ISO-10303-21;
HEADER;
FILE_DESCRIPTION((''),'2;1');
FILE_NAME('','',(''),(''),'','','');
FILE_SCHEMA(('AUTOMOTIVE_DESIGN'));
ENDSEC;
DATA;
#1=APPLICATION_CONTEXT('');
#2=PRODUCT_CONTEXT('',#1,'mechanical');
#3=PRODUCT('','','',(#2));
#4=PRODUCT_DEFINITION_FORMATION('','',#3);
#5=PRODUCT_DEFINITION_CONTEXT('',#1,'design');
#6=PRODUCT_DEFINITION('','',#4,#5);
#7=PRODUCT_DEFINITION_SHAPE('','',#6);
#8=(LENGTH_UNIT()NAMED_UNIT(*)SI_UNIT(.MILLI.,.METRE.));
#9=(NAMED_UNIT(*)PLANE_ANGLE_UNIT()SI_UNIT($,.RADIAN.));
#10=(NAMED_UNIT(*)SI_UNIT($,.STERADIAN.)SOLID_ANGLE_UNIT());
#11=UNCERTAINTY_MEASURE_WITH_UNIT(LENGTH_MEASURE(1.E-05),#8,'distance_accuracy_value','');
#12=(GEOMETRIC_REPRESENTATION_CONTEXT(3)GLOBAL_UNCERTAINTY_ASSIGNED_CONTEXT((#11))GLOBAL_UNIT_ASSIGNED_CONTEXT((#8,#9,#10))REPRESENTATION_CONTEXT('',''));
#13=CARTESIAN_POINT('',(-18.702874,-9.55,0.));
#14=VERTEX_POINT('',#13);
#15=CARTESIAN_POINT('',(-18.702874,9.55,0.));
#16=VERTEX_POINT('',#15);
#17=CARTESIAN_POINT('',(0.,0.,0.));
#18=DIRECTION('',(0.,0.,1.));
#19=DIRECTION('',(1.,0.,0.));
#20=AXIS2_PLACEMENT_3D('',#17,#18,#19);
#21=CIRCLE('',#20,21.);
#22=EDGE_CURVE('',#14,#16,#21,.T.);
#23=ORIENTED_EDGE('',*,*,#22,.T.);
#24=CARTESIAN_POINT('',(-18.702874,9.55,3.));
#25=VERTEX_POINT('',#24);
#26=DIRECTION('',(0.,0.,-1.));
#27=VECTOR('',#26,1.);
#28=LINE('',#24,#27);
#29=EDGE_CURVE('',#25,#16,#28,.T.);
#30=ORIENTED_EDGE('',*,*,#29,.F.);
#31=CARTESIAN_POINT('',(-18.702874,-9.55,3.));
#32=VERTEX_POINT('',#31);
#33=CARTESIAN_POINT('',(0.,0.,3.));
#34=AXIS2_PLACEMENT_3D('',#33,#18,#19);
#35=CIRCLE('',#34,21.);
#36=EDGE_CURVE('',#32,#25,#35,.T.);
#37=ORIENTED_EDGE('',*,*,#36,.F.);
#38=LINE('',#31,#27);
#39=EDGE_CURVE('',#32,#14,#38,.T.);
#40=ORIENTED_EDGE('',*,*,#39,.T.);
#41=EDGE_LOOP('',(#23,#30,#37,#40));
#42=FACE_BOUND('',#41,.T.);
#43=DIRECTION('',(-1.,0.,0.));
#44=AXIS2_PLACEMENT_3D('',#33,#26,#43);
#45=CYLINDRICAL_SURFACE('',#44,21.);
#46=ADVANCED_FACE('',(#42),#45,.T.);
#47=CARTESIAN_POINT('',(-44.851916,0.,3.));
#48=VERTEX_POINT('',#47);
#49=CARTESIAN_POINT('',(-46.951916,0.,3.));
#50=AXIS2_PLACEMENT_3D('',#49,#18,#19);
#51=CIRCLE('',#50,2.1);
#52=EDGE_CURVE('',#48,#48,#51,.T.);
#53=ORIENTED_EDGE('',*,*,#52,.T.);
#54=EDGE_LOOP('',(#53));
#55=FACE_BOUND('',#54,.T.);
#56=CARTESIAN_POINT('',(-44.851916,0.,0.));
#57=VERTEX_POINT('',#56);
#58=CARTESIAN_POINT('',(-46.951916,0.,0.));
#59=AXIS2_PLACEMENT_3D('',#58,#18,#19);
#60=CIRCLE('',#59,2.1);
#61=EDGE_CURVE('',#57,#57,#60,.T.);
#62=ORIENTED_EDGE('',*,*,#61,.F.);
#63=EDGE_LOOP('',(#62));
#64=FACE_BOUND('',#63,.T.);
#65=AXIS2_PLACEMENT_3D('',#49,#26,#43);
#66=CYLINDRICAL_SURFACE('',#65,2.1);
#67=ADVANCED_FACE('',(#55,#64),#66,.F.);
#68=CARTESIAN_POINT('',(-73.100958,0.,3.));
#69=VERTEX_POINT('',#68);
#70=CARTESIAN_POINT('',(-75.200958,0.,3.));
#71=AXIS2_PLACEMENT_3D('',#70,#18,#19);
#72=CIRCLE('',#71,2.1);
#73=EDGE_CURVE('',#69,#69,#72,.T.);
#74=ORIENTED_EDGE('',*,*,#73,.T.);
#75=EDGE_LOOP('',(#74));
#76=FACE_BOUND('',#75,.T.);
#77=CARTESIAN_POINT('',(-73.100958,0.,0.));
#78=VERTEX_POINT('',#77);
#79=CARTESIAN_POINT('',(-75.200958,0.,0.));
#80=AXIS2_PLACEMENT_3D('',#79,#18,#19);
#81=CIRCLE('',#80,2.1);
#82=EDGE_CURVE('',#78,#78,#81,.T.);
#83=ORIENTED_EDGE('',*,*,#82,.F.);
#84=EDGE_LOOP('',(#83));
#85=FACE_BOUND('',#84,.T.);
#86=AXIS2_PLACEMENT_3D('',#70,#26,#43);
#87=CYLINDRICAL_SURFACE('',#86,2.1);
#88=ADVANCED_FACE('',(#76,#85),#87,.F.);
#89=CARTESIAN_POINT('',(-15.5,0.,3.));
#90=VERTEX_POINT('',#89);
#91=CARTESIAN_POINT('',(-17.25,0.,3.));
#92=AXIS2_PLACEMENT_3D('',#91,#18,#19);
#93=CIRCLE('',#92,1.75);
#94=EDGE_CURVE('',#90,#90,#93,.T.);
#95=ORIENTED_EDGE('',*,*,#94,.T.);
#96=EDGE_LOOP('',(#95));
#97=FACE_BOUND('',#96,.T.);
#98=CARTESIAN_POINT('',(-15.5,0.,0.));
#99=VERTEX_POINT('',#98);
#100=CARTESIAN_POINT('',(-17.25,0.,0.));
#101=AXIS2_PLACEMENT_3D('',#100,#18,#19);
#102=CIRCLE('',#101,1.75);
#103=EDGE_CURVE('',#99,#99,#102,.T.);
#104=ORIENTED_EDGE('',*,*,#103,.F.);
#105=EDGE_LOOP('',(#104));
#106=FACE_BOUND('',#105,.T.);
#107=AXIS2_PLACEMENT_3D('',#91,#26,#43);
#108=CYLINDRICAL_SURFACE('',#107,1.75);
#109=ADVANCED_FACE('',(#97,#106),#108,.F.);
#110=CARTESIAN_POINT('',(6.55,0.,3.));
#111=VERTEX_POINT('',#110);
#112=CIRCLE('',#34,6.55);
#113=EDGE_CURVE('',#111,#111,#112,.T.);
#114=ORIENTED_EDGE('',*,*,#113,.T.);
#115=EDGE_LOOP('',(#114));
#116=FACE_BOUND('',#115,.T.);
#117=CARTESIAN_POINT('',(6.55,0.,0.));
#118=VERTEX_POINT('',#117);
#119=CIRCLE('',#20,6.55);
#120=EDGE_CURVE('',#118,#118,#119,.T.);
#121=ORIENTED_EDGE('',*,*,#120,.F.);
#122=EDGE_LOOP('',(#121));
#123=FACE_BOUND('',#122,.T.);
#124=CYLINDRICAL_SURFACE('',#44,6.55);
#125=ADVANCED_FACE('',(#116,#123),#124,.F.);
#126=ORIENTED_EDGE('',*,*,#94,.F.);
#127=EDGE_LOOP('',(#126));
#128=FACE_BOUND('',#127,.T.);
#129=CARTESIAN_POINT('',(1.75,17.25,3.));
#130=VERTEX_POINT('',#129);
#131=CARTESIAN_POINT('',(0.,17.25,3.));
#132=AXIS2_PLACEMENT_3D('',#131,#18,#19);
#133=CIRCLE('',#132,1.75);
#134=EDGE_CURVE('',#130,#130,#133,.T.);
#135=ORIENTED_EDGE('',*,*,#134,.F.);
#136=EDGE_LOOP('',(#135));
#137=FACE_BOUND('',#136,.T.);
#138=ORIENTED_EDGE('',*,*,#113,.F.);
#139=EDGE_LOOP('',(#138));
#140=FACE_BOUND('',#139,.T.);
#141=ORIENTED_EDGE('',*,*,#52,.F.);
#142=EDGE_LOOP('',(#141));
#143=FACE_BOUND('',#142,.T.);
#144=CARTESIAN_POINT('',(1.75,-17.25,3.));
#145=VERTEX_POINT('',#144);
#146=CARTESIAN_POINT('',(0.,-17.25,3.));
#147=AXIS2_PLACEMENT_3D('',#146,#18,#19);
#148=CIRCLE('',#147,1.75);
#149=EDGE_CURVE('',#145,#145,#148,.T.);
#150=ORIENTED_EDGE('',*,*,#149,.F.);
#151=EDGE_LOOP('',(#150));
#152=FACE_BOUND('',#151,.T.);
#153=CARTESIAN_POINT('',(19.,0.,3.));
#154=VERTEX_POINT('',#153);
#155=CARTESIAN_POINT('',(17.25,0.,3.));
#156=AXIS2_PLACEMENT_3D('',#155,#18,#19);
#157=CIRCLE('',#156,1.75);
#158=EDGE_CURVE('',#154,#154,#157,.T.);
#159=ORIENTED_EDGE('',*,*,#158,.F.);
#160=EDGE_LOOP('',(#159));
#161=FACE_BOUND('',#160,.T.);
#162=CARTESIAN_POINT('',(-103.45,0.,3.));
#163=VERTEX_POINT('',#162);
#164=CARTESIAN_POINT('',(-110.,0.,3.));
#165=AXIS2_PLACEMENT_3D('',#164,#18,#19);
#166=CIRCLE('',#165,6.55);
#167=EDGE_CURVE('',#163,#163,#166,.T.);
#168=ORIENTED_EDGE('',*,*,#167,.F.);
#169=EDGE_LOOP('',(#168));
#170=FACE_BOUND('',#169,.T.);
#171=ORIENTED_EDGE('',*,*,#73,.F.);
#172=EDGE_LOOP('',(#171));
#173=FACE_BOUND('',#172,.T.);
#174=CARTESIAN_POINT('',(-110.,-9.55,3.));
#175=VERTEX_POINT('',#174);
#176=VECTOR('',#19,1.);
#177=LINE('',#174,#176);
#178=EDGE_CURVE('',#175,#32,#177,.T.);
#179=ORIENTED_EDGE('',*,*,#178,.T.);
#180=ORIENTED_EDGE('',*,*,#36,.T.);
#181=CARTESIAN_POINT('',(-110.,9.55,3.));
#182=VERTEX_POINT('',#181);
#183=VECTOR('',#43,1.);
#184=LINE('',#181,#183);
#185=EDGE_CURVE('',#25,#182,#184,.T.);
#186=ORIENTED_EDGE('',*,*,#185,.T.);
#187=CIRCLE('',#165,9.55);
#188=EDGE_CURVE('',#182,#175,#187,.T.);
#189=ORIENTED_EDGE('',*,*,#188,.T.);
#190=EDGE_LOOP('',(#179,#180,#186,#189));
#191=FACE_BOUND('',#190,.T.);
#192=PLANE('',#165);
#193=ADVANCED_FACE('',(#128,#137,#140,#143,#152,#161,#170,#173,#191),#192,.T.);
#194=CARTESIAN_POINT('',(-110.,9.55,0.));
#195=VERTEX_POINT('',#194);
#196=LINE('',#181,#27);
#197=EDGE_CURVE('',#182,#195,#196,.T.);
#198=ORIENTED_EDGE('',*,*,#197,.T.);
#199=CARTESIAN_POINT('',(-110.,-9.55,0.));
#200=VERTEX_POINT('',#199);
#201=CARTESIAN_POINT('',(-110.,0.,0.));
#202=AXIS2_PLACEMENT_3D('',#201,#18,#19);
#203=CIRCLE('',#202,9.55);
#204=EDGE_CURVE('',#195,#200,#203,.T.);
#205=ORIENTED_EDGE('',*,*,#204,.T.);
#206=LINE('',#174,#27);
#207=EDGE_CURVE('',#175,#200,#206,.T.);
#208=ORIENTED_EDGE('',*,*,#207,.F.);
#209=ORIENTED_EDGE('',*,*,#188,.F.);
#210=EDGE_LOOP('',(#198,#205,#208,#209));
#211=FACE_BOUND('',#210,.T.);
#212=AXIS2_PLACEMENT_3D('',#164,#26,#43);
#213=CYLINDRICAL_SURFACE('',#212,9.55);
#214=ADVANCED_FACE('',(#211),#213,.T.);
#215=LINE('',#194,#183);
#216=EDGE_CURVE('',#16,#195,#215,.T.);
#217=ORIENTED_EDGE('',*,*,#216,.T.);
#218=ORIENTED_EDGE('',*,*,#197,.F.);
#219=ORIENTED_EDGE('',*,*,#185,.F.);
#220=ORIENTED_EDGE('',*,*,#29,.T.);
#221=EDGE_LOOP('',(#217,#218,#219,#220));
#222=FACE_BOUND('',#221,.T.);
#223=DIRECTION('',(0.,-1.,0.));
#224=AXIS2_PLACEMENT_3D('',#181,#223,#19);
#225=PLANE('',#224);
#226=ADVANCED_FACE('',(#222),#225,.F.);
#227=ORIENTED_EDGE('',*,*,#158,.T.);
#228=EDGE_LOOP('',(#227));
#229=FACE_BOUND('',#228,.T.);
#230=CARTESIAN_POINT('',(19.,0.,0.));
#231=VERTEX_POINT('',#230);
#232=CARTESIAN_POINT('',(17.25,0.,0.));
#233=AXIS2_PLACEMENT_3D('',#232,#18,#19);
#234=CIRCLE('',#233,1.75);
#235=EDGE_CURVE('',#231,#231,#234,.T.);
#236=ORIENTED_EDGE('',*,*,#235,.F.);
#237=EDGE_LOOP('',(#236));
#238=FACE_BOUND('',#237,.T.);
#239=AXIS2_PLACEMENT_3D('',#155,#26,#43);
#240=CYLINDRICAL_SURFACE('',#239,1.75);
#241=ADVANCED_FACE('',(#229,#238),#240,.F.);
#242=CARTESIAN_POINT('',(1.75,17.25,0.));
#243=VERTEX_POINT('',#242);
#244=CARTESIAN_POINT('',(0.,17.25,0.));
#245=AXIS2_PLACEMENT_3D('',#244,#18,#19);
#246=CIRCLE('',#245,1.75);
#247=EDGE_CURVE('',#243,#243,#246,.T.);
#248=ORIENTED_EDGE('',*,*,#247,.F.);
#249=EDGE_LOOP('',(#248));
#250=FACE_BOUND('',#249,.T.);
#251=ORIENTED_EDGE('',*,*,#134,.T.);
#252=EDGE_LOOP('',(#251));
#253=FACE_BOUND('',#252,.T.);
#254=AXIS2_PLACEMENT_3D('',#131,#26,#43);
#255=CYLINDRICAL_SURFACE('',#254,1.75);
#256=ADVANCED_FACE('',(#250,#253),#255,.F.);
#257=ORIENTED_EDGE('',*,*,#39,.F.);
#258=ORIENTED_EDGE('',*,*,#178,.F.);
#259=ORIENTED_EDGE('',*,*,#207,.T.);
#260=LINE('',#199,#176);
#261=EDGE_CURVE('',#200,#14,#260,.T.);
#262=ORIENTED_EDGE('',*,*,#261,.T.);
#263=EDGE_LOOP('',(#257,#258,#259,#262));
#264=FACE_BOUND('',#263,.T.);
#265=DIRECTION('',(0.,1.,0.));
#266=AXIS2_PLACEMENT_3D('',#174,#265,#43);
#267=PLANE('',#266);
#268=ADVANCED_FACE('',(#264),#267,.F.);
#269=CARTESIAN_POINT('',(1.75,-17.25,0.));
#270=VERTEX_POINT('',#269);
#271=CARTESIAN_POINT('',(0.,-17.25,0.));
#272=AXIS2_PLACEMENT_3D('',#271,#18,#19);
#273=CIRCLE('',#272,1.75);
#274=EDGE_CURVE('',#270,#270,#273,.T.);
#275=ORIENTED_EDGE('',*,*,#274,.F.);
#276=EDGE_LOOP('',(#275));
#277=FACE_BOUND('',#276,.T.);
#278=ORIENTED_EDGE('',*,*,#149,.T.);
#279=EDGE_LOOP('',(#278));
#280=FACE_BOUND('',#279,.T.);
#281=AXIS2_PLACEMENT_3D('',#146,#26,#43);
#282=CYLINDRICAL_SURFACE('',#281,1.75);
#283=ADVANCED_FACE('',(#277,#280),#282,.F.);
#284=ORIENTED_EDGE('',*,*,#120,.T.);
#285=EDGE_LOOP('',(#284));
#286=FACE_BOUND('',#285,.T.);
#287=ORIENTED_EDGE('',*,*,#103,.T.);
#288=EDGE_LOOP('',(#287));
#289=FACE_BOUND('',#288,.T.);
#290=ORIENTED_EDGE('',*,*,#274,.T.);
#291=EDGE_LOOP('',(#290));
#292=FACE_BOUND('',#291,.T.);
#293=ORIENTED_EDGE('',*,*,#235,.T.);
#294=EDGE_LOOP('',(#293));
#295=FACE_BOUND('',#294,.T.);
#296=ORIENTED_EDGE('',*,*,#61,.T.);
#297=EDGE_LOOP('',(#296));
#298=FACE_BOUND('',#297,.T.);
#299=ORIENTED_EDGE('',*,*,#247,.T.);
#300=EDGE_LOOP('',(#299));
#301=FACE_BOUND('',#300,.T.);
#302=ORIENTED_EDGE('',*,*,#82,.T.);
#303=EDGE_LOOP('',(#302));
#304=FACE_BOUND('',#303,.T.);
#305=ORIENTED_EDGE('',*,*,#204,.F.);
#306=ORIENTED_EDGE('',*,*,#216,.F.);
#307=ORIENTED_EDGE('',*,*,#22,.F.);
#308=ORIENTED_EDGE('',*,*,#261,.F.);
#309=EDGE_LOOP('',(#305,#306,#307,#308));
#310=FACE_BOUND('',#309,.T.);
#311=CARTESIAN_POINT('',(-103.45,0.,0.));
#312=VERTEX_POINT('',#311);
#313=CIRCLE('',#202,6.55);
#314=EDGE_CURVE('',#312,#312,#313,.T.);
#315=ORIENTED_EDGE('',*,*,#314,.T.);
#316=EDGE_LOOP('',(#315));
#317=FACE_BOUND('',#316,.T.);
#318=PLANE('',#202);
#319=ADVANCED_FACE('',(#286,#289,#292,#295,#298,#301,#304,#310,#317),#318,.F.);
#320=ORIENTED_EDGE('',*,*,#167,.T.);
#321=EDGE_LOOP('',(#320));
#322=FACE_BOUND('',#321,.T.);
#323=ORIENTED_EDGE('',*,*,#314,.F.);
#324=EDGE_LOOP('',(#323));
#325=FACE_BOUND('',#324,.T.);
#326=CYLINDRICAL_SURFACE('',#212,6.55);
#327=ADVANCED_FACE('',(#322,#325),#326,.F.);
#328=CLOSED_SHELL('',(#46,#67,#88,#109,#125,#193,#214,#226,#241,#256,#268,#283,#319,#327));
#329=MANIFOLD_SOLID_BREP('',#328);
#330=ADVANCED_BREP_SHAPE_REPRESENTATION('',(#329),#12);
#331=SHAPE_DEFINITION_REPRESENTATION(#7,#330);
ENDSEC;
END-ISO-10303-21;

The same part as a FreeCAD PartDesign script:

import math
import FreeCAD as App
import Part
import Sketcher
from FreeCAD import Vector

doc = App.newDocument("Part")
params = doc.addObject("Spreadsheet::Sheet", "Params")
for row, (alias, value) in enumerate([
    ("sketch1_radius", "21 mm"),
    ("sketch1_diameter", "3.5 mm"),
    ("sketch1_diameter2", "13.1 mm"),
    ("sketch1_diameter3", "4.2 mm"),
    ("sketch1_radius2", "9.55 mm"),
    ("pad1_length", "3 mm"),
], start=1):
    params.set(f"A{row}", alias)
    params.set(f"B{row}", "=" + value)
    params.setAlias(f"B{row}", alias)

body = doc.addObject("PartDesign::Body", "Body")

# Sketch on XY plane
sketch1 = body.newObject("Sketcher::SketchObject", "Sketch")
sketch1.AttachmentSupport = (doc.getObject("XY_Plane"), [""])
sketch1.MapMode = "FlatFace"
sketch1.addGeometry([
    Part.LineSegment(Vector(-18.702874, 9.55, 0), Vector(-110, 9.55, 0)),  # 0
    Part.ArcOfCircle(Part.Circle(Vector(-110, 0, 0), Vector(0, 0, 1), 9.55), math.radians(90), math.radians(270)),  # 1
    Part.LineSegment(Vector(-110, -9.55, 0), Vector(-18.702874, -9.55, 0)),  # 2
    Part.ArcOfCircle(Part.Circle(Vector(0, 0, 0), Vector(0, 0, 1), 21), math.radians(-152.950384), math.radians(152.950384)),  # 3
    Part.Circle(Vector(0, -17.25, 0), Vector(0, 0, 1), 1.75),  # 4
    Part.Circle(Vector(17.25, 0, 0), Vector(0, 0, 1), 1.75),  # 5
    Part.Circle(Vector(0, 0, 0), Vector(0, 0, 1), 6.55),  # 6
    Part.Circle(Vector(-17.25, 0, 0), Vector(0, 0, 1), 1.75),  # 7
    Part.Circle(Vector(-46.951916, 0, 0), Vector(0, 0, 1), 2.1),  # 8
    Part.Circle(Vector(0, 17.25, 0), Vector(0, 0, 1), 1.75),  # 9
    Part.Circle(Vector(-75.200958, 0, 0), Vector(0, 0, 1), 2.1),  # 10
    Part.Circle(Vector(-110, 0, 0), Vector(0, 0, 1), 6.55),  # 11
], False)
sketch1.addConstraint([
    Sketcher.Constraint("Tangent", 0, 2, 1, 1),
    Sketcher.Constraint("Tangent", 1, 2, 2, 1),
    Sketcher.Constraint("Coincident", 2, 2, 3, 1),
    Sketcher.Constraint("Coincident", 3, 2, 0, 1),
    Sketcher.Constraint("Horizontal", 0),
    Sketcher.Constraint("Horizontal", 2),
    Sketcher.Constraint("Coincident", 3, 3, -1, 1),
    Sketcher.Constraint("Coincident", 6, 3, -1, 1),
    Sketcher.Constraint("Coincident", 11, 3, 1, 3),
    Sketcher.Constraint("Equal", 4, 5),
    Sketcher.Constraint("Equal", 5, 7),
    Sketcher.Constraint("Equal", 7, 9),
    Sketcher.Constraint("Equal", 8, 10),
    Sketcher.Constraint("Equal", 6, 11),
    Sketcher.Constraint("Symmetric", 5, 3, 7, 3, -1, 1),
    Sketcher.Constraint("Symmetric", 4, 3, 9, 3, -1, 1),
    Sketcher.Constraint("PointOnObject", 1, 3, -1),
    Sketcher.Constraint("PointOnObject", 4, 3, -2),
    Sketcher.Constraint("PointOnObject", 5, 3, -1),
    Sketcher.Constraint("PointOnObject", 8, 3, -1),
    Sketcher.Constraint("PointOnObject", 10, 3, -1),
    Sketcher.Constraint("Radius", 3, 21.0),
    Sketcher.Constraint("Diameter", 4, 3.5),
    Sketcher.Constraint("Diameter", 6, 13.1),
    Sketcher.Constraint("Diameter", 8, 4.2),
    Sketcher.Constraint("Radius", 1, 9.55),
    Sketcher.Constraint("DistanceX", 1, 3, -1, 1, 110.0),
    Sketcher.Constraint("DistanceX", 7, 3, 5, 3, 34.5),
    Sketcher.Constraint("DistanceY", 4, 3, 9, 3, 34.5),
    Sketcher.Constraint("DistanceX", 10, 3, -1, 1, 75.200958),
    Sketcher.Constraint("DistanceX", 10, 3, 8, 3, 28.249042),
])
sketch1.setExpression("Constraints[21]", "Params.sketch1_radius")
sketch1.setExpression("Constraints[22]", "Params.sketch1_diameter")
sketch1.setExpression("Constraints[23]", "Params.sketch1_diameter2")
sketch1.setExpression("Constraints[24]", "Params.sketch1_diameter3")
sketch1.setExpression("Constraints[25]", "Params.sketch1_radius2")
pad1 = body.newObject("PartDesign::Pad", "Pad")
pad1.Profile = sketch1
pad1.setExpression("Length", "Params.pad1_length")

doc.recompute()
